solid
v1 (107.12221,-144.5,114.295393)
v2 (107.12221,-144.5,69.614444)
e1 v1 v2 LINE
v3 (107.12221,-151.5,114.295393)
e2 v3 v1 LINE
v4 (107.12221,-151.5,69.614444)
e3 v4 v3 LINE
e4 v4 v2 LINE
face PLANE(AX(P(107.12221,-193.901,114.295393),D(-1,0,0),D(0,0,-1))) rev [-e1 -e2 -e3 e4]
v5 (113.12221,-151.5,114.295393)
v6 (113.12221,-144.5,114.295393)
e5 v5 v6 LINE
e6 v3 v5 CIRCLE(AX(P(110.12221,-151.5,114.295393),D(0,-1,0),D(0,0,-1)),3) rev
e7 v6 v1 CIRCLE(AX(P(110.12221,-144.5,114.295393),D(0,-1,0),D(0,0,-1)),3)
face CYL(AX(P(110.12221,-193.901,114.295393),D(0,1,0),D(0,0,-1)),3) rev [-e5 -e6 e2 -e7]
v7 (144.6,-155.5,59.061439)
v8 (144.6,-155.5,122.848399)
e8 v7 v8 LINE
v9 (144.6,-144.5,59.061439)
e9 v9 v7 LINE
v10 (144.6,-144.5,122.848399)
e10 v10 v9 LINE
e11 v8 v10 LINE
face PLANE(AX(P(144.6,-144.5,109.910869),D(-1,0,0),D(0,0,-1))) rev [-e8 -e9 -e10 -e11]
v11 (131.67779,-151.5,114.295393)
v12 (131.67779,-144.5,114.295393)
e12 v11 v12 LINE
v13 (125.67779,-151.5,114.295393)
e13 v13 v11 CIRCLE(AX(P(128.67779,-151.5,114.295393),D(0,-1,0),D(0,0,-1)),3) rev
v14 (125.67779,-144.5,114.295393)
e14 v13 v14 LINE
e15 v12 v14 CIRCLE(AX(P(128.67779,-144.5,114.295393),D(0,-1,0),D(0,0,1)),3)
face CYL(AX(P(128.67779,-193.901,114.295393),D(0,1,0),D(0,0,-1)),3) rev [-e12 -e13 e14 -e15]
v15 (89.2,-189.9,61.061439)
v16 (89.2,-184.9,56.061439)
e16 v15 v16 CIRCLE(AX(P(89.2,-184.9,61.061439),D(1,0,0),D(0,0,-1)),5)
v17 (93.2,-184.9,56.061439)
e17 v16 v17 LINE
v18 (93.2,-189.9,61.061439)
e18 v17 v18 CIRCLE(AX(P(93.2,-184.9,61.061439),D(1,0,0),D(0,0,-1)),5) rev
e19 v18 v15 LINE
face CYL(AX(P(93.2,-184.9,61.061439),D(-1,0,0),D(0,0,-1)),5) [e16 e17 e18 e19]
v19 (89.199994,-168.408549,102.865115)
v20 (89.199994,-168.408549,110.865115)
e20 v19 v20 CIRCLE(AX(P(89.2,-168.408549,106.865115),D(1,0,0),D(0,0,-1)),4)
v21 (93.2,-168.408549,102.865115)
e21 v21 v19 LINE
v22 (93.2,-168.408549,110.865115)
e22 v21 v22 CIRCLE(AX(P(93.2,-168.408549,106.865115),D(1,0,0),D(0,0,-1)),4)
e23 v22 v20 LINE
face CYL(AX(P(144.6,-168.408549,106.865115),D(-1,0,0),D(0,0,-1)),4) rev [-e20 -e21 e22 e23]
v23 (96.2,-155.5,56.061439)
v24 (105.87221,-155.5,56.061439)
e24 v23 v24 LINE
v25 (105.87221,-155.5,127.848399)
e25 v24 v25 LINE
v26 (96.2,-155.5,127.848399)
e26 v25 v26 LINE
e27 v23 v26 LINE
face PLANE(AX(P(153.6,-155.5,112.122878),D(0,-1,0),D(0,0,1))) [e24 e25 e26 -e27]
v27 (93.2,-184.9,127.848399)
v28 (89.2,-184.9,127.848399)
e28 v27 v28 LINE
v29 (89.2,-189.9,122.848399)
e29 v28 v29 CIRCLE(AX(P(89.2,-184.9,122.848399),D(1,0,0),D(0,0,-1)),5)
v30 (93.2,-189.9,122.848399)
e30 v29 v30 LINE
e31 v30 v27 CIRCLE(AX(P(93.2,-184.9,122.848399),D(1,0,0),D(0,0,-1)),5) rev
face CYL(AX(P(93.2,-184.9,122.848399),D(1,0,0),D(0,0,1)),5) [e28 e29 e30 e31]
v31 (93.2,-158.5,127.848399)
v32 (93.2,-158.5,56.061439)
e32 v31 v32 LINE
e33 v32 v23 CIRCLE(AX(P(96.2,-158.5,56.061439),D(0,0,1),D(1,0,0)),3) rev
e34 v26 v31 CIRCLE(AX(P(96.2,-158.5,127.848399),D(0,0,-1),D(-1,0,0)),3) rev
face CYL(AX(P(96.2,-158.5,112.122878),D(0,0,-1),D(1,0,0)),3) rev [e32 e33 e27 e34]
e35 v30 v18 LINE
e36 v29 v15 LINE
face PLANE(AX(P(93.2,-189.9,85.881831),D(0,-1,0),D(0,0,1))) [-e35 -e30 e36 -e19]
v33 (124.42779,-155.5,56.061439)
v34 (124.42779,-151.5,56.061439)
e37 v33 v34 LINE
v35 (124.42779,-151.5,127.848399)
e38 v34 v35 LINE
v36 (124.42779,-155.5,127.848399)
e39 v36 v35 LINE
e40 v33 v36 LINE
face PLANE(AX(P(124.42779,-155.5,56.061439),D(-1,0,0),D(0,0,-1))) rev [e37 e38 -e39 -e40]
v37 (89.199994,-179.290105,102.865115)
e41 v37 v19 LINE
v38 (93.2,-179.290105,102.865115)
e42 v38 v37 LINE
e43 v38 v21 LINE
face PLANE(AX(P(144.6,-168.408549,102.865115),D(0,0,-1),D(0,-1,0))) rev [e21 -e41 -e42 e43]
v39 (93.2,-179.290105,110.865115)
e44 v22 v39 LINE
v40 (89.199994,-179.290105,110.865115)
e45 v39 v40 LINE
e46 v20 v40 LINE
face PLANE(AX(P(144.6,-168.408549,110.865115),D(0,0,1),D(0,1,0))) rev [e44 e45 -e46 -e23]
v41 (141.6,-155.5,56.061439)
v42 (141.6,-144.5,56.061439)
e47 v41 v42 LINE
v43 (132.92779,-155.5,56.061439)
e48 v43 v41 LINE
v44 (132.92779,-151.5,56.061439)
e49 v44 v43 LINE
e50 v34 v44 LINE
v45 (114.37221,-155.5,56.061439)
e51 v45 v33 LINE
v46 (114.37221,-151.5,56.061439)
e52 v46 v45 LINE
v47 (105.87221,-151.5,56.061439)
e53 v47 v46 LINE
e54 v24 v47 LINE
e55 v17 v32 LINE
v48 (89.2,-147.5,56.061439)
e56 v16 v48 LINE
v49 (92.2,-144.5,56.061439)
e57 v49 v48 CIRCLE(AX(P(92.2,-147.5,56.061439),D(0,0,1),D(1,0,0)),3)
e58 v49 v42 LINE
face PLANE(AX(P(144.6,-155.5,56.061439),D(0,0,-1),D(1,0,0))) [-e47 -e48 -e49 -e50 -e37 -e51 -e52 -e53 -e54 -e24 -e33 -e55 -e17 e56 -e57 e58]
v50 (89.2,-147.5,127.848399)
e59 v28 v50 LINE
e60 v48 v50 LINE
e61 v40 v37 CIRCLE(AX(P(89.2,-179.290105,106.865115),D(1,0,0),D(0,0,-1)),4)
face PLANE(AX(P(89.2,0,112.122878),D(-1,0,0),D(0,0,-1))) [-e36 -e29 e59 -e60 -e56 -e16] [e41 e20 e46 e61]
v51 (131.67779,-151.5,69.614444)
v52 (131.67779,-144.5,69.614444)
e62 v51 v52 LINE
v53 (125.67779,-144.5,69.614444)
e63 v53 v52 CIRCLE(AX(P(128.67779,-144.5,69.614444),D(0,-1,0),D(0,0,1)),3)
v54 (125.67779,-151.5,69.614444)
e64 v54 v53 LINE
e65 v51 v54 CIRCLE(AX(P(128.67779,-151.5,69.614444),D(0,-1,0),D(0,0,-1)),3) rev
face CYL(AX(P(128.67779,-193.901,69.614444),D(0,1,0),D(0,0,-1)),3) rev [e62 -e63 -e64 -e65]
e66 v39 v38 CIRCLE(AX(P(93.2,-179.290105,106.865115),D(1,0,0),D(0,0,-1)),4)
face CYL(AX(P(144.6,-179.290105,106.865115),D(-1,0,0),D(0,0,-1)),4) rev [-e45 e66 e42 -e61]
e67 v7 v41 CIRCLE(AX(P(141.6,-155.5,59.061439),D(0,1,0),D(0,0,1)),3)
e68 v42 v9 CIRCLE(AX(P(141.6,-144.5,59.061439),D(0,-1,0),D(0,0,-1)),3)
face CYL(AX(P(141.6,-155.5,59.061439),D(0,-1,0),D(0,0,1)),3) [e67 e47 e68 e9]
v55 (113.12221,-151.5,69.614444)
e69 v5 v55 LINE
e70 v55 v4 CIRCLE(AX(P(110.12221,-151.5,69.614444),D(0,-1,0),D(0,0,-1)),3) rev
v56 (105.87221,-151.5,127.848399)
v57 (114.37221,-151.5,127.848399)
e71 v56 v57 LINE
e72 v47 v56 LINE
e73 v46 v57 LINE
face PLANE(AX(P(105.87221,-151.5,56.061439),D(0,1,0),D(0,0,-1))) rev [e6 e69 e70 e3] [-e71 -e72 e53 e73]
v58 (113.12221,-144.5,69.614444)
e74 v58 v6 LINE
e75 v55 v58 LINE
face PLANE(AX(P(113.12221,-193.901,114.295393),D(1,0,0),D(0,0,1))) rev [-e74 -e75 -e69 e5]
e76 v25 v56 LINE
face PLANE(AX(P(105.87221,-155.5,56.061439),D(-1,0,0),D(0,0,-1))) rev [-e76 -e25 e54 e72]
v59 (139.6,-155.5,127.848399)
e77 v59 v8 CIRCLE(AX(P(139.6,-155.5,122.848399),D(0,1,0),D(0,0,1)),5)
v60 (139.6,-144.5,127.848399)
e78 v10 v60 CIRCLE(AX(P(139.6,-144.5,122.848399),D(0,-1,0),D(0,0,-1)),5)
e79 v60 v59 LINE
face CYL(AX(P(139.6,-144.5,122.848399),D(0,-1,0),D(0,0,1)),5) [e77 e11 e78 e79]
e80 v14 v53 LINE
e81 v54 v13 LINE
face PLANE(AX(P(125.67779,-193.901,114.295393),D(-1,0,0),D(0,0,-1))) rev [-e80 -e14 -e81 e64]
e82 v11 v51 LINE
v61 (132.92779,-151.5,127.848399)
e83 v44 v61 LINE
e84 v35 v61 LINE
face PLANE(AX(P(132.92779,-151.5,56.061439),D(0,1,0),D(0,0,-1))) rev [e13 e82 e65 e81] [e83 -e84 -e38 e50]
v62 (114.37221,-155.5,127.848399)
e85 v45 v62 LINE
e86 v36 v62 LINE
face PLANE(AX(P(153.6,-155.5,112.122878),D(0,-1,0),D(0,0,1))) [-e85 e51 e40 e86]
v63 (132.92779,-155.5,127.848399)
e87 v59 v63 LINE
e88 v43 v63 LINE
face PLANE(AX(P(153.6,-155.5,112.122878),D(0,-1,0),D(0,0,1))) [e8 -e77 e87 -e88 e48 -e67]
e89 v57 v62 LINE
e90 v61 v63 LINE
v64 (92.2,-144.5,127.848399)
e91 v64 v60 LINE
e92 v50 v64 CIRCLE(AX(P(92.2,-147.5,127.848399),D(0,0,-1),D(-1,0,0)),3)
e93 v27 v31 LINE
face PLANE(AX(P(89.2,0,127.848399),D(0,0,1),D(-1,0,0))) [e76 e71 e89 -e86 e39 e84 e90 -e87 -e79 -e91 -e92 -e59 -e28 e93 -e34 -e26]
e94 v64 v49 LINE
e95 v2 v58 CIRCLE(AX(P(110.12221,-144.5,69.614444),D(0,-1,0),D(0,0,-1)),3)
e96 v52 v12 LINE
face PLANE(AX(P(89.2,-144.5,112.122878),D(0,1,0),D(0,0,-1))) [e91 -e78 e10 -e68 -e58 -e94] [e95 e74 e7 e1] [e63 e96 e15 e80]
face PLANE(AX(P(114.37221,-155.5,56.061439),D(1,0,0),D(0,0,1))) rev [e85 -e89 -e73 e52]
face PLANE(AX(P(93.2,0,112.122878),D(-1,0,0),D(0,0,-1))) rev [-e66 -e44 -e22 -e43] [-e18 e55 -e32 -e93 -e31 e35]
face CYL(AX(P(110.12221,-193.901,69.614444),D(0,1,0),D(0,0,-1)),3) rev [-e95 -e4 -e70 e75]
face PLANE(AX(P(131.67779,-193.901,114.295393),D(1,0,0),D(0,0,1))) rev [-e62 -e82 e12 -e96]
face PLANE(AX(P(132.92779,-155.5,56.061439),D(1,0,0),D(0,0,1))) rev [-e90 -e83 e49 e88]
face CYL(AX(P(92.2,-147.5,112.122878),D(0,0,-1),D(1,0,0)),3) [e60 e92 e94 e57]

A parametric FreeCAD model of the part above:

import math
import FreeCAD as App
import Part
import Sketcher

V = App.Vector


def edges_at(feature, points):
    """Names of the edges that pass closest to the given points."""
    edges = feature.Shape.Edges
    near = lambda p: min(range(len(edges)), key=lambda i: edges[i].distToShape(Part.Vertex(*p))[0])
    return sorted({f"Edge{near(p) + 1}" for p in points})

doc = App.newDocument("Part")
body = doc.addObject("PartDesign::Body", "Body")

# Sketch on YZ plane
sketch1 = body.newObject("Sketcher::SketchObject", "Sketch")
sketch1.AttachmentSupport = (doc.getObject("YZ_Plane"), [""])
sketch1.MapMode = "FlatFace"
sketch1.AttachmentOffset = App.Placement(V(0, 0, 93.2), App.Rotation())
sketch1.addGeometry([
    Part.LineSegment(V(-144.5, -15.725521, 0), V(-193.9, -15.725521, 0)),  # 0
    Part.LineSegment(V(-193.9, -15.725521, 0), V(-193.9, 26.241046, 0)),  # 1
    Part.LineSegment(V(-193.9, 26.241046, 0), V(-144.5, 26.241046, 0)),  # 2
    Part.LineSegment(V(-144.5, 26.241046, 0), V(-144.5, -15.725521, 0)),  # 3
    Part.Circle(V(-173.849327, 5.257763, 0), V(0, 0, 1), 4),  # 4
], False)
sketch1.addConstraint([
    Sketcher.Constraint("Coincident", 0, 2, 1, 1),
    Sketcher.Constraint("Coincident", 1, 2, 2, 1),
    Sketcher.Constraint("Coincident", 2, 2, 3, 1),
    Sketcher.Constraint("Coincident", 3, 2, 0, 1),
    Sketcher.Constraint("Horizontal", 0),
    Sketcher.Constraint("Vertical", 1),
    Sketcher.Constraint("Horizontal", 2),
    Sketcher.Constraint("Vertical", 3),
    Sketcher.Constraint("Diameter", 4, 8.0),
    Sketcher.Constraint("DistanceX", 0, 2, 0, 1, 49.4),
    Sketcher.Constraint("DistanceX", 0, 2, -1, 1, 193.9),
    Sketcher.Constraint("DistanceY", 1, 1, 1, 2, 41.966567),
    Sketcher.Constraint("DistanceY", 0, 2, -1, 1, 15.725521),
    Sketcher.Constraint("DistanceX", 4, 3, -1, 1, 173.849327),
    Sketcher.Constraint("DistanceY", -1, 1, 4, 3, 5.257763),
])
pad1 = body.newObject("PartDesign::Pad", "Pad")
pad1.Profile = sketch1
pad1.Length = 4
pad1.Reversed = True

# Sketch on YZ plane
sketch2 = body.newObject("Sketcher::SketchObject", "Sketch001")
sketch2.AttachmentSupport = (doc.getObject("YZ_Plane"), [""])
sketch2.MapMode = "FlatFace"
sketch2.AttachmentOffset = App.Placement(V(0, 0, 93.4), App.Rotation())
sketch2.addGeometry([
    Part.LineSegment(V(-144.5, -15.725521, 0), V(-155.5, -15.725521, 0)),
    Part.LineSegment(V(-155.5, -15.725521, 0), V(-155.5, 26.241046, 0)),
    Part.LineSegment(V(-155.5, 26.241046, 0), V(-144.5, 26.241046, 0)),
    Part.LineSegment(V(-144.5, 26.241046, 0), V(-144.5, -15.725521, 0)),
], False)
sketch2.addConstraint([
    Sketcher.Constraint("Coincident", 0, 2, 1, 1),
    Sketcher.Constraint("Coincident", 1, 2, 2, 1),
    Sketcher.Constraint("Coincident", 2, 2, 3, 1),
    Sketcher.Constraint("Coincident", 3, 2, 0, 1),
    Sketcher.Constraint("Horizontal", 0),
    Sketcher.Constraint("Vertical", 1),
    Sketcher.Constraint("Horizontal", 2),
    Sketcher.Constraint("Vertical", 3),
    Sketcher.Constraint("DistanceX", 0, 2, 0, 1, 11.0),
    Sketcher.Constraint("DistanceX", 0, 2, -1, 1, 155.5),
    Sketcher.Constraint("DistanceY", 1, 1, 1, 2, 41.966567),
    Sketcher.Constraint("DistanceY", 0, 2, -1, 1, 15.725521),
])
pad2 = body.newObject("PartDesign::Pad", "Pad001")
pad2.Profile = sketch2
pad2.Type = "UpToFirst"
pad2.Reversed = True

# Sketch on YZ plane
sketch3 = body.newObject("Sketcher::SketchObject", "Sketch002")
sketch3.AttachmentSupport = (doc.getObject("YZ_Plane"), [""])
sketch3.MapMode = "FlatFace"
sketch3.AttachmentOffset = App.Placement(V(0, 0, 93.4), App.Rotation())
sketch3.addGeometry([
    Part.LineSegment(V(-189.9, -15.725521, 0), V(-193.9, -15.725521, 0)),
    Part.LineSegment(V(-193.9, -15.725521, 0), V(-193.9, 26.241046, 0)),
    Part.LineSegment(V(-193.9, 26.241046, 0), V(-189.9, 26.241046, 0)),
    Part.LineSegment(V(-189.9, 26.241046, 0), V(-189.9, -15.725521, 0)),
], False)
sketch3.addConstraint([
    Sketcher.Constraint("Coincident", 0, 2, 1, 1),
    Sketcher.Constraint("Coincident", 1, 2, 2, 1),
    Sketcher.Constraint("Coincident", 2, 2, 3, 1),
    Sketcher.Constraint("Coincident", 3, 2, 0, 1),
    Sketcher.Constraint("Horizontal", 0),
    Sketcher.Constraint("Vertical", 1),
    Sketcher.Constraint("Horizontal", 2),
    Sketcher.Constraint("Vertical", 3),
    Sketcher.Constraint("DistanceX", 0, 2, 0, 1, 4.0),
    Sketcher.Constraint("DistanceX", 0, 2, -1, 1, 193.9),
    Sketcher.Constraint("DistanceY", 1, 1, 1, 2, 41.966567),
    Sketcher.Constraint("DistanceY", 0, 2, -1, 1, 15.725521),
])
pad3 = body.newObject("PartDesign::Pad", "Pad002")
pad3.Profile = sketch3
pad3.Type = "UpToFirst"
pad3.Reversed = True

# Sketch on YZ plane
sketch4 = body.newObject("Sketcher::SketchObject", "Sketch003")
sketch4.AttachmentSupport = (doc.getObject("YZ_Plane"), [""])
sketch4.MapMode = "FlatFace"
sketch4.AttachmentOffset = App.Placement(V(0, 0, 93.4), App.Rotation())
sketch4.addGeometry([
    Part.LineSegment(V(-144.5, -15.725521, 0), V(-155.5, -15.725521, 0)),  # 0
    Part.LineSegment(V(-155.5, -15.725521, 0), V(-155.5, 26.241046, 0)),  # 1
    Part.LineSegment(V(-155.5, 26.241046, 0), V(-144.5, 26.241046, 0)),  # 2
    Part.LineSegment(V(-144.5, 26.241046, 0), V(-144.5, -15.725521, 0)),  # 3
    Part.LineSegment(V(-189.9, -15.725521, 0), V(-193.9, -15.725521, 0)),  # 4
    Part.LineSegment(V(-193.9, -15.725521, 0), V(-193.9, 26.241046, 0)),  # 5
    Part.LineSegment(V(-193.9, 26.241046, 0), V(-189.9, 26.241046, 0)),  # 6
    Part.LineSegment(V(-189.9, 26.241046, 0), V(-189.9, -15.725521, 0)),  # 7
], False)
sketch4.addConstraint([
    Sketcher.Constraint("Coincident", 0, 2, 1, 1),
    Sketcher.Constraint("Coincident", 1, 2, 2, 1),
    Sketcher.Constraint("Coincident", 2, 2, 3, 1),
    Sketcher.Constraint("Coincident", 3, 2, 0, 1),
    Sketcher.Constraint("Coincident", 4, 2, 5, 1),
    Sketcher.Constraint("Coincident", 5, 2, 6, 1),
    Sketcher.Constraint("Coincident", 6, 2, 7, 1),
    Sketcher.Constraint("Coincident", 7, 2, 4, 1),
    Sketcher.Constraint("Horizontal", 0),
    Sketcher.Constraint("Vertical", 1),
    Sketcher.Constraint("Horizontal", 2),
    Sketcher.Constraint("Vertical", 3),
    Sketcher.Constraint("Horizontal", 4),
    Sketcher.Constraint("Vertical", 5),
    Sketcher.Constraint("Horizontal", 6),
    Sketcher.Constraint("Vertical", 7),
    Sketcher.Constraint("Horizontal", 3, 2, 4, 2),
    Sketcher.Constraint("Horizontal", 2, 2, 5, 2),
    Sketcher.Constraint("DistanceX", 0, 2, 0, 1, 11.0),
    Sketcher.Constraint("DistanceX", 4, 2, 4, 1, 4.0),
    Sketcher.Constraint("DistanceX", 0, 2, -1, 1, 155.5),
    Sketcher.Constraint("DistanceX", 4, 2, -1, 1, 193.9),
    Sketcher.Constraint("DistanceY", 1, 1, 1, 2, 41.966567),
    Sketcher.Constraint("DistanceY", 0, 2, -1, 1, 15.725521),
])
pad4 = body.newObject("PartDesign::Pad", "Pad003")
pad4.Profile = sketch4
pad4.Length = 60.2
doc.recompute()

fillet = body.newObject("PartDesign::Fillet", "Fillet")
fillet.Base = (pad4, edges_at(pad4, [
    (89.2, -193.9, 5.258),
    (93.2, -155.5, 5.258),
    (153.6, -191.9, 26.241),
    (93.2, -189.9, 5.258),
    (153.6, -191.9, -15.726),
]))
fillet.Radius = 3

# Sketch on XY plane
sketch5 = body.newObject("Sketcher::SketchObject", "Sketch004")
sketch5.AttachmentSupport = (doc.getObject("XY_Plane"), [""])
sketch5.MapMode = "FlatFace"
sketch5.AttachmentOffset = App.Placement(V(0, 0, 26.241046), App.Rotation())
sketch5.addGeometry([
    Part.LineSegment(V(144.6, -144.5, 0), V(144.6, -155.7, 0)),
    Part.LineSegment(V(144.6, -155.7, 0), V(153.6, -155.7, 0)),
    Part.LineSegment(V(153.6, -155.7, 0), V(153.6, -144.5, 0)),
    Part.LineSegment(V(153.6, -144.5, 0), V(144.6, -144.5, 0)),
], False)
sketch5.addConstraint([
    Sketcher.Constraint("Coincident", 0, 2, 1, 1),
    Sketcher.Constraint("Coincident", 1, 2, 2, 1),
    Sketcher.Constraint("Coincident", 2, 2, 3, 1),
    Sketcher.Constraint("Coincident", 3, 2, 0, 1),
    Sketcher.Constraint("Vertical", 0),
    Sketcher.Constraint("Horizontal", 1),
    Sketcher.Constraint("Vertical", 2),
    Sketcher.Constraint("Horizontal", 3),
    Sketcher.Constraint("DistanceX", 1, 1, 1, 2, 9.0),
    Sketcher.Constraint("DistanceY", 0, 2, 0, 1, 11.2),
    Sketcher.Constraint("DistanceX", -1, 1, 0, 2, 144.6),
    Sketcher.Constraint("DistanceY", 0, 2, -1, 1, 155.7),
])
pocket1 = body.newObject("PartDesign::Pocket", "Pocket")
pocket1.Profile = sketch5
pocket1.Length = 24.029037

# Sketch on YZ plane
sketch6 = body.newObject("Sketcher::SketchObject", "Sketch005")
sketch6.AttachmentSupport = (doc.getObject("YZ_Plane"), [""])
sketch6.MapMode = "FlatFace"
sketch6.AttachmentOffset = App.Placement(V(0, 0, 153.6), App.Rotation())
sketch6.addGeometry([
    Part.LineSegment(V(-135.809633, 55.933673, 0), V(-155.5, 55.933673, 0)),  # 0
    Part.LineSegment(V(-155.5, 55.933673, 0), V(-155.5, -15.725521, 0)),  # 1
    Part.LineSegment(V(-155.5, -15.725521, 0), V(-135.809633, -15.725521, 0)),  # 2
    Part.LineSegment(V(-135.809633, -15.725521, 0), V(-135.809633, 55.933673, 0)),  # 3
    Part.Circle(V(-145.700936, 39.297424, 0), V(0, 0, 1), 3.18616),  # 4
    Part.Circle(V(-145.700936, 9.68616, 0), V(0, 0, 1), 3.18616),  # 5
], False)
sketch6.addConstraint([
    Sketcher.Constraint("Coincident", 0, 2, 1, 1),
    Sketcher.Constraint("Coincident", 1, 2, 2, 1),
    Sketcher.Constraint("Coincident", 2, 2, 3, 1),
    Sketcher.Constraint("Coincident", 3, 2, 0, 1),
    Sketcher.Constraint("Horizontal", 0),
    Sketcher.Constraint("Vertical", 1),
    Sketcher.Constraint("Horizontal", 2),
    Sketcher.Constraint("Vertical", 3),
    Sketcher.Constraint("Equal", 4, 5),
    Sketcher.Constraint("Vertical", 4, 3, 5, 3),
    Sketcher.Constraint("DistanceX", 0, 2, -1, 1, 155.5),
    Sketcher.Constraint("Diameter", 4, 6.372319),
    Sketcher.Constraint("DistanceX", 0, 2, 0, 1, 19.690367),
    Sketcher.Constraint("DistanceY", 1, 2, 1, 1, 71.659194),
    Sketcher.Constraint("DistanceY", -1, 1, 5, 3, 9.68616),
    Sketcher.Constraint("DistanceY", 1, 2, -1, 1, 15.725521),
    Sketcher.Constraint("DistanceY", 4, 3, 0, 2, 16.636249),
    Sketcher.Constraint("DistanceX", 4, 3, -1, 1, 145.700936),
])
pad5 = body.newObject("PartDesign::Pad", "Pad004")
pad5.Profile = sketch6
pad5.Length = 4
pad5.Reversed = True
doc.recompute()

fillet2 = body.newObject("PartDesign::Fillet", "Fillet001")
fillet2.Base = (pad5, edges_at(pad5, [(149.6, -144.5, -6.757), (151.6, -135.81, -15.726), (151.6, -135.81, 55.934)]))
fillet2.Radius = 3

# Sketch on XZ plane
sketch7 = body.newObject("Sketcher::SketchObject", "Sketch006")
sketch7.AttachmentSupport = (doc.getObject("XZ_Plane"), [""])
sketch7.MapMode = "FlatFace"
sketch7.AttachmentOffset = App.Placement(V(0, 0, 155.5), App.Rotation())
sketch7.addGeometry([
    Part.LineSegment(V(89.2, 26.241046, 0), V(89.2, 56.061439, 0)),
    Part.LineSegment(V(89.2, 56.061439, 0), V(144.6, 56.061439, 0)),
    Part.LineSegment(V(144.6, 56.061439, 0), V(144.6, 26.241046, 0)),
    Part.LineSegment(V(144.6, 26.241046, 0), V(89.2, 26.241046, 0)),
], False)
sketch7.addConstraint([
    Sketcher.Constraint("Coincident", 0, 2, 1, 1),
    Sketcher.Constraint("Coincident", 1, 2, 2, 1),
    Sketcher.Constraint("Coincident", 2, 2, 3, 1),
    Sketcher.Constraint("Coincident", 3, 2, 0, 1),
    Sketcher.Constraint("Vertical", 0),
    Sketcher.Constraint("Horizontal", 1),
    Sketcher.Constraint("Vertical", 2),
    Sketcher.Constraint("Horizontal", 3),
    Sketcher.Constraint("DistanceX", 1, 1, 1, 2, 55.4),
    Sketcher.Constraint("DistanceX", -1, 1, 0, 2, 89.2),
    Sketcher.Constraint("DistanceY", 0, 1, 0, 2, 29.820392),
    Sketcher.Constraint("DistanceY", -1, 1, 0, 2, 56.061439),
])
pad6 = body.newObject("PartDesign::Pad", "Pad005")
pad6.Profile = sketch7
pad6.Length = 11
pad6.Reversed = True
doc.recompute()

fillet3 = body.newObject("PartDesign::Fillet", "Fillet002")
fillet3.Base = (pad6, edges_at(pad6, [(144.6, -150, 56.061), (89.2, -144.5, 20.168)]))
fillet3.Radius = 3

# Sketch on XY plane
sketch8 = body.newObject("Sketcher::SketchObject", "Sketch007")
sketch8.AttachmentSupport = (doc.getObject("XY_Plane"), [""])
sketch8.MapMode = "FlatFace"
sketch8.AttachmentOffset = App.Placement(V(0, 0, -15.725521), App.Rotation())
sketch8.addGeometry([
    Part.LineSegment(V(132.92779, -151.5, 0), V(132.92779, -155.5, 0)),  # 0
    Part.LineSegment(V(132.92779, -155.5, 0), V(124.42779, -155.5, 0)),  # 1
    Part.LineSegment(V(124.42779, -155.5, 0), V(124.42779, -151.5, 0)),  # 2
    Part.LineSegment(V(124.42779, -151.5, 0), V(132.92779, -151.5, 0)),  # 3
    Part.LineSegment(V(114.37221, -151.5, 0), V(114.37221, -155.5, 0)),  # 4
    Part.LineSegment(V(114.37221, -155.5, 0), V(105.87221, -155.5, 0)),  # 5
    Part.LineSegment(V(105.87221, -155.5, 0), V(105.87221, -151.5, 0)),  # 6
    Part.LineSegment(V(105.87221, -151.5, 0), V(114.37221, -151.5, 0)),  # 7
], False)
sketch8.addConstraint([
    Sketcher.Constraint("Coincident", 0, 2, 1, 1),
    Sketcher.Constraint("Coincident", 1, 2, 2, 1),
    Sketcher.Constraint("Coincident", 2, 2, 3, 1),
    Sketcher.Constraint("Coincident", 3, 2, 0, 1),
    Sketcher.Constraint("Coincident", 4, 2, 5, 1),
    Sketcher.Constraint("Coincident", 5, 2, 6, 1),
    Sketcher.Constraint("Coincident", 6, 2, 7, 1),
    Sketcher.Constraint("Coincident", 7, 2, 4, 1),
    Sketcher.Constraint("Vertical", 0),
    Sketcher.Constraint("Horizontal", 1),
    Sketcher.Constraint("Vertical", 2),
    Sketcher.Constraint("Horizontal", 3),
    Sketcher.Constraint("Vertical", 4),
    Sketcher.Constraint("Horizontal", 5),
    Sketcher.Constraint("Vertical", 6),
    Sketcher.Constraint("Horizontal", 7),
    Sketcher.Constraint("Horizontal", 1, 2, 4, 2),
    Sketcher.Constraint("Horizontal", 3, 2, 6, 2),
    Sketcher.Constraint("Equal", 3, 5),
    Sketcher.Constraint("DistanceY", 0, 2, 0, 1, 4.0),
    Sketcher.Constraint("DistanceX", 1, 2, 1, 1, 8.5),
    Sketcher.Constraint("DistanceY", 0, 2, -1, 1, 155.5),
    Sketcher.Constraint("DistanceX", -1, 1, 0, 2, 132.92779),
    Sketcher.Constraint("DistanceX", -1, 1, 4, 2, 114.37221),
])
pocket2 = body.newObject("PartDesign::Pocket", "Pocket001")
pocket2.Profile = sketch8
pocket2.Type = "ThroughAll"
pocket2.Midplane = True
doc.recompute()

fillet4 = body.newObject("PartDesign::Fillet", "Fillet003")
fillet4.Base = (pocket2, edges_at(pocket2, [(144.6, -150, 2.212)]))
fillet4.Radius = 2

# Sketch on XZ plane
sketch9 = body.newObject("Sketcher::SketchObject", "Sketch008")
sketch9.AttachmentSupport = (doc.getObject("XZ_Plane"), [""])
sketch9.MapMode = "FlatFace"
sketch9.AttachmentOffset = App.Placement(V(0, 0, 144.5), App.Rotation())
sketch9.addGeometry([
    Part.LineSegment(V(113.12221, 42.508434, 0), V(113.12221, -2.172515, 0)),
    Part.ArcOfCircle(Part.Circle(V(110.12221, -2.172515, 0), V(0, 0, 1), 3), math.radians(180), math.radians(360)),
    Part.LineSegment(V(107.12221, -2.172515, 0), V(107.12221, 42.508434, 0)),
    Part.ArcOfCircle(Part.Circle(V(110.12221, 42.508434, 0), V(0, 0, 1), 3), math.radians(0), math.radians(180)),
], False)
sketch9.addConstraint([
    Sketcher.Constraint("Tangent", 0, 2, 1, 2),
    Sketcher.Constraint("Tangent", 1, 1, 2, 1),
    Sketcher.Constraint("Tangent", 2, 2, 3, 2),
    Sketcher.Constraint("Tangent", 3, 1, 0, 1),
    Sketcher.Constraint("Vertical", 0),
    Sketcher.Constraint("Vertical", 2),
    Sketcher.Constraint("Radius", 1, 3.0),
    Sketcher.Constraint("DistanceY", 0, 2, 0, 1, 44.680949),
    Sketcher.Constraint("DistanceX", -1, 1, 1, 3, 110.12221),
    Sketcher.Constraint("DistanceY", 1, 3, -1, 1, 2.172515),
])
pocket3 = body.newObject("PartDesign::Pocket", "Pocket002")
pocket3.Profile = sketch9
pocket3.Type = "UpToFirst"
pocket3.Reversed = True

# Sketch on XZ plane
sketch10 = body.newObject("Sketcher::SketchObject", "Sketch009")
sketch10.AttachmentSupport = (doc.getObject("XZ_Plane"), [""])
sketch10.MapMode = "FlatFace"
sketch10.AttachmentOffset = App.Placement(V(0, 0, 144.5), App.Rotation())
sketch10.addGeometry([
    Part.LineSegment(V(125.67779, -2.172515, 0), V(125.67779, 42.508434, 0)),
    Part.ArcOfCircle(Part.Circle(V(128.67779, 42.508434, 0), V(0, 0, 1), 3), math.radians(0), math.radians(180)),
    Part.LineSegment(V(131.67779, 42.508434, 0), V(131.67779, -2.172515, 0)),
    Part.ArcOfCircle(Part.Circle(V(128.67779, -2.172515, 0), V(0, 0, 1), 3), math.radians(180), math.radians(360)),
], False)
sketch10.addConstraint([
    Sketcher.Constraint("Tangent", 0, 2, 1, 2),
    Sketcher.Constraint("Tangent", 1, 1, 2, 1),
    Sketcher.Constraint("Tangent", 2, 2, 3, 2),
    Sketcher.Constraint("Tangent", 3, 1, 0, 1),
    Sketcher.Constraint("Vertical", 0),
    Sketcher.Constraint("Vertical", 2),
    Sketcher.Constraint("Radius", 1, 3.0),
    Sketcher.Constraint("DistanceY", 0, 1, 0, 2, 44.680949),
    Sketcher.Constraint("DistanceX", -1, 1, 1, 3, 128.67779),
    Sketcher.Constraint("DistanceY", -1, 1, 1, 3, 42.508434),
])
pocket4 = body.newObject("PartDesign::Pocket", "Pocket003")
pocket4.Profile = sketch10
pocket4.Type = "UpToFirst"
pocket4.Reversed = True

# Sketch on XZ plane
sketch11 = body.newObject("Sketcher::SketchObject", "Sketch010")
sketch11.AttachmentSupport = (doc.getObject("XZ_Plane"), [""])
sketch11.MapMode = "FlatFace"
sketch11.AttachmentOffset = App.Placement(V(0, 0, 135.809633), App.Rotation())
sketch11.addGeometry([
    Part.LineSegment(V(144.6, -47.115725, 0), V(144.6, 77.581842, 0)),
    Part.LineSegment(V(144.6, 77.581842, 0), V(185.544612, 56.674351, 0)),
    Part.LineSegment(V(185.544612, 56.674351, 0), V(190.182137, -46.607842, 0)),
    Part.LineSegment(V(190.182137, -46.607842, 0), V(144.6, -47.115725, 0)),
], False)
sketch11.addConstraint([
    Sketcher.Constraint("Coincident", 0, 2, 1, 1),
    Sketcher.Constraint("Coincident", 1, 2, 2, 1),
    Sketcher.Constraint("Coincident", 2, 2, 3, 1),
    Sketcher.Constraint("Coincident", 3, 2, 0, 1),
    Sketcher.Constraint("Vertical", 0),
    Sketcher.Constraint("DistanceX", -1, 1, 0, 2, 144.6),
    Sketcher.Constraint("DistanceY", 0, 1, 0, 2, 124.697566),
    Sketcher.Constraint("DistanceY", -1, 1, 0, 2, 77.581842),
    Sketcher.Constraint("DistanceY", -1, 1, 1, 2, 56.674351),
    Sketcher.Constraint("DistanceY", 2, 2, -1, 1, 46.607842),
    Sketcher.Constraint("Distance", 1, 45.973736),
    Sketcher.Constraint("Distance", 2, 103.386256),
])
pocket5 = body.newObject("PartDesign::Pocket", "Pocket004")
pocket5.Profile = sketch11
pocket5.Type = "ThroughAll"
pocket5.Midplane = True
doc.recompute()

fillet5 = body.newObject("PartDesign::Fillet", "Fillet004")
fillet5.Base = (pocket5, edges_at(pocket5, [(144.6, -150, -15.726)]))
fillet5.Radius = 5

# Sketch on YZ plane
sketch12 = body.newObject("Sketcher::SketchObject", "Sketch011")
sketch12.AttachmentSupport = (doc.getObject("YZ_Plane"), [""])
sketch12.MapMode = "FlatFace"
sketch12.AttachmentOffset = App.Placement(V(0, 0, 93.2), App.Rotation())
sketch12.addGeometry([
    Part.LineSegment(V(-155.5, 26.241046, 0), V(-189.9, 26.241046, 0)),
    Part.LineSegment(V(-189.9, 26.241046, 0), V(-189.9, 56.061439, 0)),
    Part.LineSegment(V(-189.9, 56.061439, 0), V(-155.5, 56.061439, 0)),
    Part.LineSegment(V(-155.5, 56.061439, 0), V(-155.5, 26.241046, 0)),
], False)
sketch12.addConstraint([
    Sketcher.Constraint("Coincident", 0, 2, 1, 1),
    Sketcher.Constraint("Coincident", 1, 2, 2, 1),
    Sketcher.Constraint("Coincident", 2, 2, 3, 1),
    Sketcher.Constraint("Coincident", 3, 2, 0, 1),
    Sketcher.Constraint("Horizontal", 0),
    Sketcher.Constraint("Vertical", 1),
    Sketcher.Constraint("Horizontal", 2),
    Sketcher.Constraint("Vertical", 3),
    Sketcher.Constraint("DistanceX", 0, 2, 0, 1, 34.4),
    Sketcher.Constraint("DistanceX", 0, 2, -1, 1, 189.9),
    Sketcher.Constraint("DistanceY", 1, 1, 1, 2, 29.820392),
    Sketcher.Constraint("DistanceY", -1, 1, 1, 2, 56.061439),
])
pad7 = body.newObject("PartDesign::Pad", "Pad006")
pad7.Profile = sketch12
pad7.Length = 4
pad7.Reversed = True

# Sketch on XY plane
sketch13 = body.newObject("Sketcher::SketchObject", "Sketch012")
sketch13.AttachmentSupport = (doc.getObject("XY_Plane"), [""])
sketch13.MapMode = "FlatFace"
sketch13.AttachmentOffset = App.Placement(V(0, 0, 56.061439), App.Rotation())
sketch13.addGeometry([
    Part.LineSegment(V(93.2, -155.5, 0), V(93.2, -158.5, 0)),
    Part.ArcOfCircle(Part.Circle(V(96.2, -158.5, 0), V(0, 0, 1), 3), math.radians(90), math.radians(180)),
    Part.LineSegment(V(96.2, -155.5, 0), V(93.2, -155.5, 0)),
], False)
sketch13.addConstraint([
    Sketcher.Constraint("Tangent", 0, 2, 1, 2),
    Sketcher.Constraint("Tangent", 1, 1, 2, 1),
    Sketcher.Constraint("Coincident", 2, 2, 0, 1),
    Sketcher.Constraint("Vertical", 0),
    Sketcher.Constraint("Horizontal", 2),
    Sketcher.Constraint("Radius", 1, 3.0),
    Sketcher.Constraint("DistanceX", -1, 1, 1, 3, 96.2),
    Sketcher.Constraint("DistanceY", 1, 3, -1, 1, 158.5),
])
pad8 = body.newObject("PartDesign::Pad", "Pad007")
pad8.Profile = sketch13
pad8.Length = 29.820392
pad8.Reversed = True

# Sketch on YZ plane
sketch14 = body.newObject("Sketcher::SketchObject", "Sketch013")
sketch14.AttachmentSupport = (doc.getObject("YZ_Plane"), [""])
sketch14.MapMode = "FlatFace"
sketch14.AttachmentOffset = App.Placement(V(0, 0, 89.2), App.Rotation())
sketch14.addGeometry([
    Part.LineSegment(V(-179.290105, 9.257763, 0), V(-168.408549, 9.257763, 0)),
    Part.ArcOfCircle(Part.Circle(V(-168.408549, 5.257763, 0), V(0, 0, 1), 4), math.radians(-90), math.radians(90)),
    Part.LineSegment(V(-168.408549, 1.257763, 0), V(-179.290105, 1.257763, 0)),
    Part.ArcOfCircle(Part.Circle(V(-179.290105, 5.257763, 0), V(0, 0, 1), 4), math.radians(90), math.radians(270)),
], False)
sketch14.addConstraint([
    Sketcher.Constraint("Tangent", 0, 2, 1, 2),
    Sketcher.Constraint("Tangent", 1, 1, 2, 1),
    Sketcher.Constraint("Tangent", 2, 2, 3, 2),
    Sketcher.Constraint("Tangent", 3, 1, 0, 1),
    Sketcher.Constraint("Horizontal", 0),
    Sketcher.Constraint("Horizontal", 2),
    Sketcher.Constraint("Radius", 1, 4.0),
    Sketcher.Constraint("DistanceX", 0, 1, 0, 2, 10.881556),
    Sketcher.Constraint("DistanceX", 1, 3, -1, 1, 168.408549),
    Sketcher.Constraint("DistanceY", -1, 1, 1, 3, 5.257763),
])
pocket6 = body.newObject("PartDesign::Pocket", "Pocket005")
pocket6.Profile = sketch14
pocket6.Type = "ThroughAll"
pocket6.Midplane = True

# Sketch on YZ plane
sketch15 = body.newObject("Sketcher::SketchObject", "Sketch014")
sketch15.AttachmentSupport = (doc.getObject("YZ_Plane"), [""])
sketch15.MapMode = "FlatFace"
sketch15.AttachmentOffset = App.Placement(V(0, 0, 89.2), App.Rotation())
sketch15.addGeometry([
    Part.LineSegment(V(-189.9, -17.228357, 0), V(-203.757104, -17.228357, 0)),
    Part.LineSegment(V(-203.757104, -17.228357, 0), V(-203.757104, 61.499135, 0)),
    Part.LineSegment(V(-203.757104, 61.499135, 0), V(-189.9, 61.499135, 0)),
    Part.LineSegment(V(-189.9, 61.499135, 0), V(-189.9, -17.228357, 0)),
], False)
sketch15.addConstraint([
    Sketcher.Constraint("Coincident", 0, 2, 1, 1),
    Sketcher.Constraint("Coincident", 1, 2, 2, 1),
    Sketcher.Constraint("Coincident", 2, 2, 3, 1),
    Sketcher.Constraint("Coincident", 3, 2, 0, 1),
    Sketcher.Constraint("Horizontal", 0),
    Sketcher.Constraint("Vertical", 1),
    Sketcher.Constraint("Horizontal", 2),
    Sketcher.Constraint("Vertical", 3),
    Sketcher.Constraint("DistanceX", 2, 2, -1, 1, 189.9),
    Sketcher.Constraint("DistanceX", 0, 2, 0, 1, 13.857104),
    Sketcher.Constraint("DistanceY", 1, 1, 1, 2, 78.727492),
    Sketcher.Constraint("DistanceY", 0, 2, -1, 1, 17.228357),
])
pocket7 = body.newObject("PartDesign::Pocket", "Pocket006")
pocket7.Profile = sketch15
pocket7.Type = "ThroughAll"
pocket7.Midplane = True

# Sketch on XZ plane
sketch16 = body.newObject("Sketcher::SketchObject", "Sketch015")
sketch16.AttachmentSupport = (doc.getObject("XZ_Plane"), [""])
sketch16.MapMode = "FlatFace"
sketch16.AttachmentOffset = App.Placement(V(0, 0, 189.9), App.Rotation())
sketch16.addGeometry([
    Part.LineSegment(V(93.2, 37.106569, 0), V(93.2, -15.725521, 0)),
    Part.LineSegment(V(93.2, -15.725521, 0), V(106.633327, -15.725521, 0)),
    Part.LineSegment(V(106.633327, -15.725521, 0), V(106.633327, 37.106569, 0)),
    Part.LineSegment(V(106.633327, 37.106569, 0), V(93.2, 37.106569, 0)),
], False)
sketch16.addConstraint([
    Sketcher.Constraint("Coincident", 0, 2, 1, 1),
    Sketcher.Constraint("Coincident", 1, 2, 2, 1),
    Sketcher.Constraint("Coincident", 2, 2, 3, 1),
    Sketcher.Constraint("Coincident", 3, 2, 0, 1),
    Sketcher.Constraint("Vertical", 0),
    Sketcher.Constraint("Horizontal", 1),
    Sketcher.Constraint("Vertical", 2),
    Sketcher.Constraint("Horizontal", 3),
    Sketcher.Constraint("DistanceX", -1, 1, 0, 2, 93.2),
    Sketcher.Constraint("DistanceY", 0, 2, 0, 1, 52.83209),
    Sketcher.Constraint("DistanceX", 1, 1, 1, 2, 13.433327),
    Sketcher.Constraint("DistanceY", 0, 2, -1, 1, 15.725521),
])
pocket8 = body.newObject("PartDesign::Pocket", "Pocket007")
pocket8.Profile = sketch16
pocket8.Length = 3
doc.recompute()

fillet6 = body.newObject("PartDesign::Fillet", "Fillet005")
fillet6.Base = (pocket8, edges_at(pocket8, [(91.2, -189.9, 56.061), (91.2, -189.9, -15.726)]))
fillet6.Radius = 5
body2 = doc.addObject("PartDesign::Body", "Body001")
doc.recompute()

mirroring = doc.addObject("Part::Mirroring", "Mirroring")
mirroring.Source = body
mirroring.Base = V(144.6, -155.5, 56.061439)
mirroring.Normal = V(0, 0, 1)
body2.BaseFeature = mirroring
doc.recompute()
body.Visibility = False
mirroring.Visibility = False

doc.recompute()
